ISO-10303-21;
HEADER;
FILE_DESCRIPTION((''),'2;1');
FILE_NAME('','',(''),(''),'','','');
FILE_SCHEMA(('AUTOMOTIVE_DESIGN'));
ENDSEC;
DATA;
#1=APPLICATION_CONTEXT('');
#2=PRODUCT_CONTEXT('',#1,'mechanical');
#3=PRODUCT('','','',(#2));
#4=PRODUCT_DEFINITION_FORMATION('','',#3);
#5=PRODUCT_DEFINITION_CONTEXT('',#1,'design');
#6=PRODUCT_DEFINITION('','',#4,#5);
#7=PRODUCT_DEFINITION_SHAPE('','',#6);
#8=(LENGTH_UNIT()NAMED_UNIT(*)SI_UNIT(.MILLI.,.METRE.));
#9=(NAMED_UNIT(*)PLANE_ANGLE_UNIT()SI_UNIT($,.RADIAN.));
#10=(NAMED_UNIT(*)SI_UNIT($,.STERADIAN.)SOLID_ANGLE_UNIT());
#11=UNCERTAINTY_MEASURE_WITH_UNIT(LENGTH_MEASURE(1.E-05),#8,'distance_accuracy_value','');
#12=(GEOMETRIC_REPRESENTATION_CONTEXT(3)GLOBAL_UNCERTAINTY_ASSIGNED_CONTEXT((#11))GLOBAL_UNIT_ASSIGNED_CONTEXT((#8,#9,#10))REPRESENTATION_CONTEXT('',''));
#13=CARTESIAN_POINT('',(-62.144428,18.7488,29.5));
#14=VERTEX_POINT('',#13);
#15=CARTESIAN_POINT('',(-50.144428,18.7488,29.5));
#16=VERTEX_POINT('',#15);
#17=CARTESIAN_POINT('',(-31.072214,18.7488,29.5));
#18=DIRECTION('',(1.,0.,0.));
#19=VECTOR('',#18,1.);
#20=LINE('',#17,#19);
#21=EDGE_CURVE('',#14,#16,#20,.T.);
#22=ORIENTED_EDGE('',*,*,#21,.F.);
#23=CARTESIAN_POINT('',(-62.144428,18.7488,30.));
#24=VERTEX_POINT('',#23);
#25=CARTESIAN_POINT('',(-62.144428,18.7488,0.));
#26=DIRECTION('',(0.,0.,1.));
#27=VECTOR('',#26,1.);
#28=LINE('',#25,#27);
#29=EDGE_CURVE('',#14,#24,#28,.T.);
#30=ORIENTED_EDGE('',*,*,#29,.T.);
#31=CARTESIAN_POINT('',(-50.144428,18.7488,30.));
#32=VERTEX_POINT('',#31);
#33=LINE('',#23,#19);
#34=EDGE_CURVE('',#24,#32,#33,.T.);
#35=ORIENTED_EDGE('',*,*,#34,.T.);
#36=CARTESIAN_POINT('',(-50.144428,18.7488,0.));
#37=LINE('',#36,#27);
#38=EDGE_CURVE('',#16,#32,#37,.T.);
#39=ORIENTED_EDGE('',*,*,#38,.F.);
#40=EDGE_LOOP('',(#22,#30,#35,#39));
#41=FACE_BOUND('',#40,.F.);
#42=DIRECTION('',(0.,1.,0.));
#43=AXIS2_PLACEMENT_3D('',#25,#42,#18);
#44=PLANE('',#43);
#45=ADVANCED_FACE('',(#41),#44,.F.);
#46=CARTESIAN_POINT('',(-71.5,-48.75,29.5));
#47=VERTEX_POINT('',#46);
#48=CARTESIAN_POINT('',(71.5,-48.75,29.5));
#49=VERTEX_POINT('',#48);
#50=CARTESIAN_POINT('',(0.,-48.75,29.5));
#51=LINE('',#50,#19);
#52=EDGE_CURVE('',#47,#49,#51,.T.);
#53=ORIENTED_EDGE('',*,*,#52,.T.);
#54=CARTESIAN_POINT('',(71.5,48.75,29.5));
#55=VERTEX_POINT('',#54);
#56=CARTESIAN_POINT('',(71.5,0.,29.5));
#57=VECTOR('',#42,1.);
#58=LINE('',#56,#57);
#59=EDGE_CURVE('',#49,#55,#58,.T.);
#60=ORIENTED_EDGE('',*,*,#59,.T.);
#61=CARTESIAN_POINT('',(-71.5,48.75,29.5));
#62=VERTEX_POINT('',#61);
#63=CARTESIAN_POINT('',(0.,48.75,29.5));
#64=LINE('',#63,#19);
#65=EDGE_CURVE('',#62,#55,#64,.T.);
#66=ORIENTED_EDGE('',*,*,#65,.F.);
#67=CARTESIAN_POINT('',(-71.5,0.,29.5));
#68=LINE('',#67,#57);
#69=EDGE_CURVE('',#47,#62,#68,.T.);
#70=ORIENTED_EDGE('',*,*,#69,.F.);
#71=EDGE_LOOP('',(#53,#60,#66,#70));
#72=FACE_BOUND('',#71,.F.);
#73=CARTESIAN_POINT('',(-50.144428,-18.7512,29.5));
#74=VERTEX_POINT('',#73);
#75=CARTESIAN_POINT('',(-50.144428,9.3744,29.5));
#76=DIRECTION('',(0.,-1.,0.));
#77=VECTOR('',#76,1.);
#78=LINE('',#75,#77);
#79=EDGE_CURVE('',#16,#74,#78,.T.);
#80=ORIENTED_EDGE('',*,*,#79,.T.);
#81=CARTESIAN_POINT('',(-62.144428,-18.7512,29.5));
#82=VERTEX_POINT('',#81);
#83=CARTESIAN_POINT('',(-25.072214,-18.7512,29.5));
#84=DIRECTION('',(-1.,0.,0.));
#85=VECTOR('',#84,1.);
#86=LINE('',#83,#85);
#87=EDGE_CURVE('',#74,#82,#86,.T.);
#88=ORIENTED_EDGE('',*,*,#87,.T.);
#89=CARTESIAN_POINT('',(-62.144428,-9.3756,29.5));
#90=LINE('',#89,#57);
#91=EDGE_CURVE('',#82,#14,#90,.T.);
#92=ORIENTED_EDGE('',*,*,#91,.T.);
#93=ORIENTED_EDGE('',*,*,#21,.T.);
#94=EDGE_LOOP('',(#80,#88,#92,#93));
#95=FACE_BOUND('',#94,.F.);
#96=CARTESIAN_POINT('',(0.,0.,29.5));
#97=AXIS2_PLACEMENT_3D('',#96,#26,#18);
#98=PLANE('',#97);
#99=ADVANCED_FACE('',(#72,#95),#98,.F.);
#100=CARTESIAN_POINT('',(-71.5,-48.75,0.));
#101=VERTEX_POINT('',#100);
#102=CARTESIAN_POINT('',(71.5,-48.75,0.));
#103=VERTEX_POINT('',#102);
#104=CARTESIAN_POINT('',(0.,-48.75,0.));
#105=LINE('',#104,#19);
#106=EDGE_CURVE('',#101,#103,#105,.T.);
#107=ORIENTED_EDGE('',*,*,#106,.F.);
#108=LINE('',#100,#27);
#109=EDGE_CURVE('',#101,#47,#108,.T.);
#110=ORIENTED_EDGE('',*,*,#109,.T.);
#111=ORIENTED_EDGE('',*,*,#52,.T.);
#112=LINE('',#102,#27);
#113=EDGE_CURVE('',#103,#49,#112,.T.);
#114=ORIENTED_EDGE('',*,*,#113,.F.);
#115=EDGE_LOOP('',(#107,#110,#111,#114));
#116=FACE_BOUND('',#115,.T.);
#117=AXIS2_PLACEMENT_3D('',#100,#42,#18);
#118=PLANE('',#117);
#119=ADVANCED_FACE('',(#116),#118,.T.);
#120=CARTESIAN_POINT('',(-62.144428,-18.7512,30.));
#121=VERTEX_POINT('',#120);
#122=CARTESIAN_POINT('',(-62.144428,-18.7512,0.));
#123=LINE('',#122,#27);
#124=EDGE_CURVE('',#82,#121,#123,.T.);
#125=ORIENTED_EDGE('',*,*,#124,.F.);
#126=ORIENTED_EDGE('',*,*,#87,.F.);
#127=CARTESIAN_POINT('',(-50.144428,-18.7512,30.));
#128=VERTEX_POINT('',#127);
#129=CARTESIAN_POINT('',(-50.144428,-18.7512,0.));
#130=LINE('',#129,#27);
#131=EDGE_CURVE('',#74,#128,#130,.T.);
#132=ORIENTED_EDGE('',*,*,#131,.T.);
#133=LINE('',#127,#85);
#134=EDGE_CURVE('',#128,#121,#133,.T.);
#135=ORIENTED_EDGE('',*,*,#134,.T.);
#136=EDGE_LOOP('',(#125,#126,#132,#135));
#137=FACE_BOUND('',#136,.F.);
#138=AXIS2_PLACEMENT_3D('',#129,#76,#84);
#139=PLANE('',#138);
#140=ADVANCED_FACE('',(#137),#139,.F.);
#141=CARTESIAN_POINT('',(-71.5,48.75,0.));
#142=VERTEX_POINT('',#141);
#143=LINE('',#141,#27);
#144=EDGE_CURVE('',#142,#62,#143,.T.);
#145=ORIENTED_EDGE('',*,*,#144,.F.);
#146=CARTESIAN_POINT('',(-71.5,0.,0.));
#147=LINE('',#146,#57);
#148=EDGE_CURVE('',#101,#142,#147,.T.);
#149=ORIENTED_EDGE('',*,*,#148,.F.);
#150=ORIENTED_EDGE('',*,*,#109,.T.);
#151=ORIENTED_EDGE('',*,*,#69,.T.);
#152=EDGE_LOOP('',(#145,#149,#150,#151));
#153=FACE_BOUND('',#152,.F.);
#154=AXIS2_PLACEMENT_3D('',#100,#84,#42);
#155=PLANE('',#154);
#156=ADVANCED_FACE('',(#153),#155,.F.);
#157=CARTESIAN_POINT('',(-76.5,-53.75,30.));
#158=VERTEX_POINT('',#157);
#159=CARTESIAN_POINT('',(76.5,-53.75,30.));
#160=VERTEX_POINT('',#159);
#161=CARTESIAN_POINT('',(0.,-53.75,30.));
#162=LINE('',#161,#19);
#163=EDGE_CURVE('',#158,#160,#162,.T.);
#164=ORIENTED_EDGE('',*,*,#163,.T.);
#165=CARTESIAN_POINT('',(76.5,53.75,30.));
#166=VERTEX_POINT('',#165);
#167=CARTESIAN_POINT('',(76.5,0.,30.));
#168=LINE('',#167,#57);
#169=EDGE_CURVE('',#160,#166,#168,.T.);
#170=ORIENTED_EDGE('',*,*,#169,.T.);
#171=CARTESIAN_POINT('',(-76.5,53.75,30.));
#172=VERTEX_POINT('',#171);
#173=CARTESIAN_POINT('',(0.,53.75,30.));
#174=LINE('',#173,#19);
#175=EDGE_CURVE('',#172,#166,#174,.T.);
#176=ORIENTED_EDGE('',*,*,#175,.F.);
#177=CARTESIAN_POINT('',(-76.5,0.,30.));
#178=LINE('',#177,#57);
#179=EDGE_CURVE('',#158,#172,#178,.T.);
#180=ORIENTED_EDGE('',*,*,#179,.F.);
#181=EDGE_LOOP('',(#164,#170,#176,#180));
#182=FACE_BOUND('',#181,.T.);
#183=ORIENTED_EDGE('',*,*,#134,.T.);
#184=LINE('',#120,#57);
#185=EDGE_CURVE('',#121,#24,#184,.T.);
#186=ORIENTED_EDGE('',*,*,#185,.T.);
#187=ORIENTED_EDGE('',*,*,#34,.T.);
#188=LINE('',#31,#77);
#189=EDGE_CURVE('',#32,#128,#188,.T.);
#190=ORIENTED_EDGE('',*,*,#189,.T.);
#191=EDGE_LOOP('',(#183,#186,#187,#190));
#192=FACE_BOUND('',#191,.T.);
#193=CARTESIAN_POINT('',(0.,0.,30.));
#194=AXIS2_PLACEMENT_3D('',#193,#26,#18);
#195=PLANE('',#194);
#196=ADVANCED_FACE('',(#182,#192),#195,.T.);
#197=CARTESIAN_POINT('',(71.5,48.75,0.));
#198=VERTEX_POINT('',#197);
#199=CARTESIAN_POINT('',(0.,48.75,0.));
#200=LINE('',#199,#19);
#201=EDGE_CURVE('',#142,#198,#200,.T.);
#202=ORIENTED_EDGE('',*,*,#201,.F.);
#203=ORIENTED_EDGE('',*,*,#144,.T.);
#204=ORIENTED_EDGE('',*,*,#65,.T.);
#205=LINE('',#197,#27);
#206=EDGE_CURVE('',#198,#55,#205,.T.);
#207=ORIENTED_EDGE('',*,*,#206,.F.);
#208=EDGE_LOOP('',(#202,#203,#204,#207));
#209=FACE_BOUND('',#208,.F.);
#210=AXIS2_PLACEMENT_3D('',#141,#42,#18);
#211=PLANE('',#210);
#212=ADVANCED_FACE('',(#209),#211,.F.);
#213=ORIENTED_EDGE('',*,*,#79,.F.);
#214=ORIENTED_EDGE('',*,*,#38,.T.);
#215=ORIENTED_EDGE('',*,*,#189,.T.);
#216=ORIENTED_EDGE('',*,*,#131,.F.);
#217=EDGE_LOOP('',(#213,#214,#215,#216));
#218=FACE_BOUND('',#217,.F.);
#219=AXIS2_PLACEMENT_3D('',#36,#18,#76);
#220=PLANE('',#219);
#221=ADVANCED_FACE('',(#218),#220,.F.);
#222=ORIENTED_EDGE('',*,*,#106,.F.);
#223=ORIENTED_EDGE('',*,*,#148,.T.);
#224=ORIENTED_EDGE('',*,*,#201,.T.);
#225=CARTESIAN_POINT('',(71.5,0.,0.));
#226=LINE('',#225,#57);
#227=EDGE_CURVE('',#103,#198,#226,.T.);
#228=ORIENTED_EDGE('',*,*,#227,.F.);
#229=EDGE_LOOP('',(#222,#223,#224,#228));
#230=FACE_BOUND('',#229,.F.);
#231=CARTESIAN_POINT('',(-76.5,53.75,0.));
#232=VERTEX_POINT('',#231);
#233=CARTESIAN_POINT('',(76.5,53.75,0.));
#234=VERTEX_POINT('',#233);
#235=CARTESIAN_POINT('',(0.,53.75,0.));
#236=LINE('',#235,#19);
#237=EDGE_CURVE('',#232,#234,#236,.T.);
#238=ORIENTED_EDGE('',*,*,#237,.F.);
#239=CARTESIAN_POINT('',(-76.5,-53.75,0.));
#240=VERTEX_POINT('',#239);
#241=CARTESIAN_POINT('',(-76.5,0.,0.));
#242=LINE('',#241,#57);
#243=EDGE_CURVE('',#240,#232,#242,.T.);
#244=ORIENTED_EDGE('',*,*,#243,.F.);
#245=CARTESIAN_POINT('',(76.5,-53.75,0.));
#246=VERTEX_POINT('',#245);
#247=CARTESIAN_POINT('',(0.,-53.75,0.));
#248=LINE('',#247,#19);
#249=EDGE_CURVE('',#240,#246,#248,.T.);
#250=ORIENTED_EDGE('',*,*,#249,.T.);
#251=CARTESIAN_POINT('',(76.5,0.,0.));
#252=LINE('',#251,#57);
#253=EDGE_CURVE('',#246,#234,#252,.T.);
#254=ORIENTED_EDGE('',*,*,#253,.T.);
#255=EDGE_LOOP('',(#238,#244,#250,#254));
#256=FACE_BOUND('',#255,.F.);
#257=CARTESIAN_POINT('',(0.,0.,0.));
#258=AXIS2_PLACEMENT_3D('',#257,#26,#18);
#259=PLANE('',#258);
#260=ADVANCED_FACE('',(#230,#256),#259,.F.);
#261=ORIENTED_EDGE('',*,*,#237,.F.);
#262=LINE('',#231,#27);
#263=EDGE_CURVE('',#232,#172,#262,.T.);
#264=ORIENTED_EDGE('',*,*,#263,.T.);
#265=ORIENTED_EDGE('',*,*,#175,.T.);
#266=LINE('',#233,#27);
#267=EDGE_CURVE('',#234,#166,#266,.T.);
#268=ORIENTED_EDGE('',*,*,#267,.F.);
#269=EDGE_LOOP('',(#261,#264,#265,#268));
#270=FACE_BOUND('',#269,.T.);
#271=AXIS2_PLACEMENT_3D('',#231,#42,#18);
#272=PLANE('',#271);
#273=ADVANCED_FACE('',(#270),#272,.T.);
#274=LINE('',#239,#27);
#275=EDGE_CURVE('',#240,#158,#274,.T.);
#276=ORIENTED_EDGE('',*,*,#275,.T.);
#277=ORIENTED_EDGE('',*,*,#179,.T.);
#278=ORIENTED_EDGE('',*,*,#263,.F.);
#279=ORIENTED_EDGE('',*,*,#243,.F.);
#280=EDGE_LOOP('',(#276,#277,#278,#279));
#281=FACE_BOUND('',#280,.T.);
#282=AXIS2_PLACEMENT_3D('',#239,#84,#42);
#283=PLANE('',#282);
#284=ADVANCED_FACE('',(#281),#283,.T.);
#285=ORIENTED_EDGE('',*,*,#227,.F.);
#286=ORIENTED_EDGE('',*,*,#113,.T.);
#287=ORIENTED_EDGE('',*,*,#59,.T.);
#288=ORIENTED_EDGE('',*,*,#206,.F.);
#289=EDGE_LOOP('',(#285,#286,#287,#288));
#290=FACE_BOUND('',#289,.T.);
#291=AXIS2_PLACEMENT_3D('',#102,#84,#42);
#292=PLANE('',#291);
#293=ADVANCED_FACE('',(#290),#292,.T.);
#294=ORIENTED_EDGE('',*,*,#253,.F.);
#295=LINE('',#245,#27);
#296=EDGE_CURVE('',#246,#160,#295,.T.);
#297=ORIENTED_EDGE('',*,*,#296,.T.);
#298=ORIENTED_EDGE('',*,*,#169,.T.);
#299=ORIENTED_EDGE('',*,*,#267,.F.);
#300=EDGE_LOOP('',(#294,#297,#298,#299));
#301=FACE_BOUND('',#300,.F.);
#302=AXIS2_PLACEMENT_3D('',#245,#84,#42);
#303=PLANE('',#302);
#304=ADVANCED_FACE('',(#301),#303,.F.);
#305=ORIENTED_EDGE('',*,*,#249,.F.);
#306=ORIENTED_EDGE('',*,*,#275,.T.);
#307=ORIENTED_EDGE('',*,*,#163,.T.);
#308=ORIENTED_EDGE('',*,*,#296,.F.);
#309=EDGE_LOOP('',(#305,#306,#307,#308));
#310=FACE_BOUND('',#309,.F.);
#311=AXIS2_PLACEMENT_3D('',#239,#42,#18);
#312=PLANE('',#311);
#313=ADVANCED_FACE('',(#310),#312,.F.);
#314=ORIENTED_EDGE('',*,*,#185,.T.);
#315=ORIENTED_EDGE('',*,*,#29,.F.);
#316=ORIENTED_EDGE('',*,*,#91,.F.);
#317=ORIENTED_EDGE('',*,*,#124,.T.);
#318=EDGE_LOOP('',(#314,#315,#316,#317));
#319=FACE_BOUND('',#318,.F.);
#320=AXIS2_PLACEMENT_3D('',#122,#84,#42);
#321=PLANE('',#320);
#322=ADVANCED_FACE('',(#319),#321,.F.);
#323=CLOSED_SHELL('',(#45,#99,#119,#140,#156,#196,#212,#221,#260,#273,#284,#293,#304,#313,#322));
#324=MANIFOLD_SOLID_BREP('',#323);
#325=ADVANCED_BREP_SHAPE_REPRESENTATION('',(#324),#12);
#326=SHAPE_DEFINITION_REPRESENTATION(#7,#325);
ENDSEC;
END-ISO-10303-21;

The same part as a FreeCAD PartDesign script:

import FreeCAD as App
import Part
import Sketcher

V = App.Vector
Q = App.Units.Quantity

doc = App.newDocument("Part")
body = doc.addObject("PartDesign::Body", "Body")

# Sketch on XY plane
sketch1 = doc.addObject("Sketcher::SketchObject", "Sketch")
body.addObject(sketch1)
sketch1.AttachmentSupport = (doc.XY_Plane, [""])
sketch1.MapMode = "FlatFace"
sketch1.addGeometry(Part.LineSegment(V(-76, 54, 0), V(-76, -54, 0)), False)
sketch1.addGeometry(Part.LineSegment(V(-76, -54, 0), V(76, -54, 0)), False)
sketch1.addGeometry(Part.LineSegment(V(76, -54, 0), V(76, 54, 0)), False)
sketch1.addGeometry(Part.LineSegment(V(76, 54, 0), V(-76, 54, 0)), False)
sketch1.addGeometry(Part.LineSegment(V(-50, -19, 0), V(-62, -19, 0)), False)
sketch1.addGeometry(Part.LineSegment(V(-62, -19, 0), V(-62, 19, 0)), False)
sketch1.addGeometry(Part.LineSegment(V(-62, 19, 0), V(-50, 19, 0)), False)
sketch1.addGeometry(Part.LineSegment(V(-50, 19, 0), V(-50, -19, 0)), False)
sketch1.addConstraint(Sketcher.Constraint("Coincident", 0, 2, 1, 1))
sketch1.addConstraint(Sketcher.Constraint("Coincident", 1, 2, 2, 1))
sketch1.addConstraint(Sketcher.Constraint("Coincident", 2, 2, 3, 1))
sketch1.addConstraint(Sketcher.Constraint("Coincident", 3, 2, 0, 1))
sketch1.addConstraint(Sketcher.Constraint("Coincident", 4, 2, 5, 1))
sketch1.addConstraint(Sketcher.Constraint("Coincident", 5, 2, 6, 1))
sketch1.addConstraint(Sketcher.Constraint("Coincident", 6, 2, 7, 1))
sketch1.addConstraint(Sketcher.Constraint("Coincident", 7, 2, 4, 1))
sketch1.addConstraint(Sketcher.Constraint("Vertical", 0))
sketch1.addConstraint(Sketcher.Constraint("Horizontal", 1))
sketch1.addConstraint(Sketcher.Constraint("Vertical", 2))
sketch1.addConstraint(Sketcher.Constraint("Horizontal", 3))
sketch1.addConstraint(Sketcher.Constraint("Horizontal", 4))
sketch1.addConstraint(Sketcher.Constraint("Vertical", 5))
sketch1.addConstraint(Sketcher.Constraint("Horizontal", 6))
sketch1.addConstraint(Sketcher.Constraint("Vertical", 7))
sketch1.addConstraint(Sketcher.Constraint("Symmetric", 0, 2, 2, 2, -1, 1))
sketch1.addConstraint(Sketcher.Constraint("DistanceX", 1, 1, 1, 2, Q("153 mm")))
sketch1.addConstraint(Sketcher.Constraint("DistanceX", 4, 2, 4, 1, Q("12 mm")))
sketch1.addConstraint(Sketcher.Constraint("DistanceY", 0, 2, 0, 1, Q("107.5 mm")))
sketch1.addConstraint(Sketcher.Constraint("DistanceY", 5, 1, 5, 2, Q("37.5 mm")))
sketch1.addConstraint(Sketcher.Constraint("DistanceY", 4, 2, -1, 1, Q("18.7512 mm")))
sketch1.addConstraint(Sketcher.Constraint("DistanceX", 4, 2, 1, 2, Q("138.644428 mm")))
pad1 = doc.addObject("PartDesign::Pad", "Pad")
body.addObject(pad1)
pad1.Profile = sketch1
pad1.Length = 30

# Sketch on XY plane
sketch2 = doc.addObject("Sketcher::SketchObject", "Sketch001")
body.addObject(sketch2)
sketch2.AttachmentSupport = (doc.XY_Plane, [""])
sketch2.MapMode = "FlatFace"
sketch2.addGeometry(Part.LineSegment(V(-72, 49, 0), V(-72, -49, 0)), False)
sketch2.addGeometry(Part.LineSegment(V(-72, -49, 0), V(72, -49, 0)), False)
sketch2.addGeometry(Part.LineSegment(V(72, -49, 0), V(72, 49, 0)), False)
sketch2.addGeometry(Part.LineSegment(V(72, 49, 0), V(-72, 49, 0)), False)
sketch2.addConstraint(Sketcher.Constraint("Coincident", 0, 2, 1, 1))
sketch2.addConstraint(Sketcher.Constraint("Coincident", 1, 2, 2, 1))
sketch2.addConstraint(Sketcher.Constraint("Coincident", 2, 2, 3, 1))
sketch2.addConstraint(Sketcher.Constraint("Coincident", 3, 2, 0, 1))
sketch2.addConstraint(Sketcher.Constraint("Vertical", 0))
sketch2.addConstraint(Sketcher.Constraint("Horizontal", 1))
sketch2.addConstraint(Sketcher.Constraint("Vertical", 2))
sketch2.addConstraint(Sketcher.Constraint("Horizontal", 3))
sketch2.addConstraint(Sketcher.Constraint("Symmetric", 0, 2, 2, 2, -1, 1))
sketch2.addConstraint(Sketcher.Constraint("DistanceX", 1, 1, 1, 2, Q("143 mm")))
sketch2.addConstraint(Sketcher.Constraint("DistanceY", 0, 2, 0, 1, Q("97.5 mm")))
pocket1 = doc.addObject("PartDesign::Pocket", "Pocket")
body.addObject(pocket1)
pocket1.Profile = sketch2
pocket1.Length = 29.5
pocket1.Reversed = True

doc.recompute()
